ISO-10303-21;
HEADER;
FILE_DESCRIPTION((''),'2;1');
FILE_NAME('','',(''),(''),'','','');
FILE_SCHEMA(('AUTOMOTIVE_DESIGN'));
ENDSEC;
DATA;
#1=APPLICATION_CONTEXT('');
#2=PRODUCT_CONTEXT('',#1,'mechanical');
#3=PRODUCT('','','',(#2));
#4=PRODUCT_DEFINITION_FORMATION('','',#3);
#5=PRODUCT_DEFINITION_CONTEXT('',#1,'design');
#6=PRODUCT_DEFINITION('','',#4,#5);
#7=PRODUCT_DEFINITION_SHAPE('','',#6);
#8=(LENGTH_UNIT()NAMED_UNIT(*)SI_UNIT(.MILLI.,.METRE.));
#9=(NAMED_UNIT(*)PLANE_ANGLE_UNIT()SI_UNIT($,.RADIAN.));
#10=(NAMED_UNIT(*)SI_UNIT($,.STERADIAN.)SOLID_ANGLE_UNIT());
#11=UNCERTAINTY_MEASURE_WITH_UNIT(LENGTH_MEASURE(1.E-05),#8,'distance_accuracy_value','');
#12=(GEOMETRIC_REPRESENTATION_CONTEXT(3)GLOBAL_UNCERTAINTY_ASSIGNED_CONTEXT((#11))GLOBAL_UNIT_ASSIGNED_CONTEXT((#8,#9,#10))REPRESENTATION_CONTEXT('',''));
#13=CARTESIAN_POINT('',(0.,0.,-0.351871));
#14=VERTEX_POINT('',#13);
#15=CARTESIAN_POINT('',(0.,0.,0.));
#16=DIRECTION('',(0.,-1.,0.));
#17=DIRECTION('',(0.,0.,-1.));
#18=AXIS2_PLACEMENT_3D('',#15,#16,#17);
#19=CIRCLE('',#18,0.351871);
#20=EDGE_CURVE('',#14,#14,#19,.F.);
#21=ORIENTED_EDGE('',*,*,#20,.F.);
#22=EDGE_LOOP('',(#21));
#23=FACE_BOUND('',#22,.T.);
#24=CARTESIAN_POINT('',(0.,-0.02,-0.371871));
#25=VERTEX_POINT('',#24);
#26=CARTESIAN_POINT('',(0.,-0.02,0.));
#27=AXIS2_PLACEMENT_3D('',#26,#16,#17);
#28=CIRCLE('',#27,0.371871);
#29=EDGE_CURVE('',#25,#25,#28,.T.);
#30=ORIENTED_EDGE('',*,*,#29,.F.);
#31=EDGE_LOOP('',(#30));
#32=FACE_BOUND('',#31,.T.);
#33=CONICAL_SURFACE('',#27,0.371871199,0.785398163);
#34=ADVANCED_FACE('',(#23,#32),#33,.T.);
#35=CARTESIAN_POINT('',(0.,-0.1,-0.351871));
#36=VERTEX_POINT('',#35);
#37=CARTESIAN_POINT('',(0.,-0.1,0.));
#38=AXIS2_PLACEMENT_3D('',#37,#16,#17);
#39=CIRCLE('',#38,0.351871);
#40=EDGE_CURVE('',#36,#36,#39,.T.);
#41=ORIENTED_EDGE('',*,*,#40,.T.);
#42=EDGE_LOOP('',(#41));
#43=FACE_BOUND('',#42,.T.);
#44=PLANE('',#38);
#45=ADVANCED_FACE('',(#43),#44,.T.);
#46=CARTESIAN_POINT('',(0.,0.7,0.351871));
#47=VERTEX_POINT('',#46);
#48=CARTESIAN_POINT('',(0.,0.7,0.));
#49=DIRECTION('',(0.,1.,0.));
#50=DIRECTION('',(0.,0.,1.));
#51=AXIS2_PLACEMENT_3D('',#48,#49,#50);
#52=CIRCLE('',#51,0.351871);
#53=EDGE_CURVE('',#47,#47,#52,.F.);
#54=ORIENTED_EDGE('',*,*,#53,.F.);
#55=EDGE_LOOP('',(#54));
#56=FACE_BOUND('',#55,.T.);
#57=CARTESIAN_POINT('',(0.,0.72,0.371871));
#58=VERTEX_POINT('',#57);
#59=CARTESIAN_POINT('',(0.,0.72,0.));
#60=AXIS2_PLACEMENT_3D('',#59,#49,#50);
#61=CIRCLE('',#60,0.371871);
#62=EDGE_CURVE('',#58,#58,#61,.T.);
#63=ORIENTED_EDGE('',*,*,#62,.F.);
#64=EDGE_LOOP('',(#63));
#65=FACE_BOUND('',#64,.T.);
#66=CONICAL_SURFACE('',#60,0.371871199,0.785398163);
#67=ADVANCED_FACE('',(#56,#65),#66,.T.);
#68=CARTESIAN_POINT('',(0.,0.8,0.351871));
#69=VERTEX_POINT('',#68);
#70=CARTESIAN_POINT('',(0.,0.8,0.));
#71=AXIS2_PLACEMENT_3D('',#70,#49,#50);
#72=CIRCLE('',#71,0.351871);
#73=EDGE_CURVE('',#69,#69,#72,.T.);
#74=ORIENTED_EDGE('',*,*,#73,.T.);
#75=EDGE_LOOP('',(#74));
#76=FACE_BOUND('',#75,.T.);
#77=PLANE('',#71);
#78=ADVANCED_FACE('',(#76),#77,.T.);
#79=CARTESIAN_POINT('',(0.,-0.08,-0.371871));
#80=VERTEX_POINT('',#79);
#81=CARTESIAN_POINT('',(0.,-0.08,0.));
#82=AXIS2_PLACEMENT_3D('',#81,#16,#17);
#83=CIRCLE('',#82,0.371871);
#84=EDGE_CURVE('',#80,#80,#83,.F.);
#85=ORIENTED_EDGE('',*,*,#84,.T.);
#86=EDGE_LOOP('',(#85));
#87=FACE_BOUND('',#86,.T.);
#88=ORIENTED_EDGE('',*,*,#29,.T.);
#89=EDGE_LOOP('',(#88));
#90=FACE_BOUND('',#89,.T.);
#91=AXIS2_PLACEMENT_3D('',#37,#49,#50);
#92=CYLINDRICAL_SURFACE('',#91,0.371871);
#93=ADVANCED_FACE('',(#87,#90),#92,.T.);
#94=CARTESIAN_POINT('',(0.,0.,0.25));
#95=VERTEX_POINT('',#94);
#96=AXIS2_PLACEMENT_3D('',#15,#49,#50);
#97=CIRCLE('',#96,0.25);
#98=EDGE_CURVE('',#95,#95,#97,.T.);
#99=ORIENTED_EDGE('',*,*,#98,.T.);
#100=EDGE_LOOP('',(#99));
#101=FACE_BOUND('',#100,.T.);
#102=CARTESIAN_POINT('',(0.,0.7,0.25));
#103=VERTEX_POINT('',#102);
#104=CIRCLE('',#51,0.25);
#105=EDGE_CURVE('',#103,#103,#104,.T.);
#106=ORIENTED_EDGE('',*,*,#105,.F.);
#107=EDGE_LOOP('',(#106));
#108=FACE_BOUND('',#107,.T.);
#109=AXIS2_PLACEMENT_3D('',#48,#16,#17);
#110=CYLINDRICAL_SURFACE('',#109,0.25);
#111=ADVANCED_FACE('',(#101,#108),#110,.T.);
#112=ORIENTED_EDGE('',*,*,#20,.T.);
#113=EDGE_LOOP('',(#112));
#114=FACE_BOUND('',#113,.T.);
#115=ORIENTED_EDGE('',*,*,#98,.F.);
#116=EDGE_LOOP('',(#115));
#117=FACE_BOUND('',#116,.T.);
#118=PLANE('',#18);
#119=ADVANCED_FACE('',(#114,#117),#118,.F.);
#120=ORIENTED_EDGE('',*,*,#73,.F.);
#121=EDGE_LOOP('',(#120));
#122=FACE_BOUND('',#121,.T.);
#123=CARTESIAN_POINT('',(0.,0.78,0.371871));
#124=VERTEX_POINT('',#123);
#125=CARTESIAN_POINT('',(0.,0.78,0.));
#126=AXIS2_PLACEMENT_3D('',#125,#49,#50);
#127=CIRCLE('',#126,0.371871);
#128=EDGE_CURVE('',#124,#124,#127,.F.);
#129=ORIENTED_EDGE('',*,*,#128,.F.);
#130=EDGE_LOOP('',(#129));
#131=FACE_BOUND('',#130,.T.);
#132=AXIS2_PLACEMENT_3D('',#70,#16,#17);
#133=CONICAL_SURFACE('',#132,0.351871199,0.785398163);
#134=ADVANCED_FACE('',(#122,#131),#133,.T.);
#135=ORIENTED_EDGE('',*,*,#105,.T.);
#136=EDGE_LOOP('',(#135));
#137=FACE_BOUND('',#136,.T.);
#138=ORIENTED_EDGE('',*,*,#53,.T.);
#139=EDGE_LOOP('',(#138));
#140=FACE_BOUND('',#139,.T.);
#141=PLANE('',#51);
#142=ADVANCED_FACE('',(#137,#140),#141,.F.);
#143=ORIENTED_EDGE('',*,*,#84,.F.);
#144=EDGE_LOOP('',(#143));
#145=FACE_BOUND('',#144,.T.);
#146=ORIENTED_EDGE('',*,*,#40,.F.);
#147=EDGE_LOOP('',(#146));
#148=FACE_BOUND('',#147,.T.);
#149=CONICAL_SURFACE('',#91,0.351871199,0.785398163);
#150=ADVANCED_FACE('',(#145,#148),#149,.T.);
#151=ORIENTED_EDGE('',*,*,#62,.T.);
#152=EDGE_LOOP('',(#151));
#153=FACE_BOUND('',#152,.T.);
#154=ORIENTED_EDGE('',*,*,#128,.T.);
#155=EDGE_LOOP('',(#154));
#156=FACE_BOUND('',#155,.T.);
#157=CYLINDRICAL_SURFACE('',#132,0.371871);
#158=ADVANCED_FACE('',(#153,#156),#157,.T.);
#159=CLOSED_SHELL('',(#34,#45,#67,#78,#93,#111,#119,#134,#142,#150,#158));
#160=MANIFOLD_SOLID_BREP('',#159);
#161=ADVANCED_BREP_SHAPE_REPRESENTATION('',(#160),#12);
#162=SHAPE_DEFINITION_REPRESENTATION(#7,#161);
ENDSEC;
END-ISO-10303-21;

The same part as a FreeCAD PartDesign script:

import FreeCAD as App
import Part
import Sketcher
from FreeCAD import Vector
Q = App.Units.Quantity


def edges_at(feature, points):
    """Names of the edges that pass closest to the given points."""
    edges = feature.Shape.Edges
    near = lambda p: min(range(len(edges)), key=lambda i: edges[i].distToShape(Part.Vertex(*p))[0])
    return sorted({f"Edge{near(p) + 1}" for p in points})

doc = App.newDocument("Part")
body = doc.addObject("PartDesign::Body", "Body")

# Sketch on XZ plane
sketch1 = body.newObject("Sketcher::SketchObject", "Sketch")
sketch1.AttachmentSupport = (doc.getObject("XZ_Plane"), [""])
sketch1.MapMode = "FlatFace"
sketch1.addGeometry(Part.Circle(Vector(0, 0, 0), Vector(0, 0, 1), 0.25), False)
sketch1.addConstraint(Sketcher.Constraint("Coincident", 0, 3, -1, 1))
sketch1.addConstraint(Sketcher.Constraint("Diameter", 0, Q("0.5 mm")))
pad1 = body.newObject("PartDesign::Pad", "Pad")
pad1.Profile = sketch1
pad1.Length = 0.7
pad1.Reversed = True

# Sketch on XZ plane
sketch2 = body.newObject("Sketcher::SketchObject", "Sketch001")
sketch2.AttachmentSupport = (doc.getObject("XZ_Plane"), [""])
sketch2.MapMode = "FlatFace"
sketch2.AttachmentOffset = App.Placement(Vector(0, 0, -0.7), App.Rotation())
sketch2.addGeometry(Part.Circle(Vector(0, 0, 0), Vector(0, 0, 1), 0.37), False)
sketch2.addConstraint(Sketcher.Constraint("Coincident", 0, 3, -1, 1))
sketch2.addConstraint(Sketcher.Constraint("Diameter", 0, Q("0.743742 mm")))
pad2 = body.newObject("PartDesign::Pad", "Pad001")
pad2.Profile = sketch2
pad2.Length = 0.1
pad2.Reversed = True

# Sketch on XZ plane
sketch3 = body.newObject("Sketcher::SketchObject", "Sketch002")
sketch3.AttachmentSupport = (doc.getObject("XZ_Plane"), [""])
sketch3.MapMode = "FlatFace"
sketch3.addGeometry(Part.Circle(Vector(0, 0, 0), Vector(0, 0, 1), 0.37), False)
sketch3.addConstraint(Sketcher.Constraint("Coincident", 0, 3, -1, 1))
sketch3.addConstraint(Sketcher.Constraint("Diameter", 0, Q("0.743742 mm")))
pad3 = body.newObject("PartDesign::Pad", "Pad002")
pad3.Profile = sketch3
pad3.Length = 0.1
doc.recompute()

chamfer = body.newObject("PartDesign::Chamfer", "Chamfer")
chamfer.Base = (pad3, edges_at(pad3, [(-0.372, 0.8, 0)]))
chamfer.Size = 0.02
doc.recompute()

chamfer2 = body.newObject("PartDesign::Chamfer", "Chamfer001")
chamfer2.Base = (chamfer, edges_at(chamfer, [(-0.372, 0.7, 0), (-0.372, 0, 0)]))
chamfer2.Size = 0.02
doc.recompute()

chamfer3 = body.newObject("PartDesign::Chamfer", "Chamfer002")
chamfer3.Base = (chamfer2, edges_at(chamfer2, [(-0.372, -0.1, 0)]))
chamfer3.Size = 0.02

doc.recompute()
